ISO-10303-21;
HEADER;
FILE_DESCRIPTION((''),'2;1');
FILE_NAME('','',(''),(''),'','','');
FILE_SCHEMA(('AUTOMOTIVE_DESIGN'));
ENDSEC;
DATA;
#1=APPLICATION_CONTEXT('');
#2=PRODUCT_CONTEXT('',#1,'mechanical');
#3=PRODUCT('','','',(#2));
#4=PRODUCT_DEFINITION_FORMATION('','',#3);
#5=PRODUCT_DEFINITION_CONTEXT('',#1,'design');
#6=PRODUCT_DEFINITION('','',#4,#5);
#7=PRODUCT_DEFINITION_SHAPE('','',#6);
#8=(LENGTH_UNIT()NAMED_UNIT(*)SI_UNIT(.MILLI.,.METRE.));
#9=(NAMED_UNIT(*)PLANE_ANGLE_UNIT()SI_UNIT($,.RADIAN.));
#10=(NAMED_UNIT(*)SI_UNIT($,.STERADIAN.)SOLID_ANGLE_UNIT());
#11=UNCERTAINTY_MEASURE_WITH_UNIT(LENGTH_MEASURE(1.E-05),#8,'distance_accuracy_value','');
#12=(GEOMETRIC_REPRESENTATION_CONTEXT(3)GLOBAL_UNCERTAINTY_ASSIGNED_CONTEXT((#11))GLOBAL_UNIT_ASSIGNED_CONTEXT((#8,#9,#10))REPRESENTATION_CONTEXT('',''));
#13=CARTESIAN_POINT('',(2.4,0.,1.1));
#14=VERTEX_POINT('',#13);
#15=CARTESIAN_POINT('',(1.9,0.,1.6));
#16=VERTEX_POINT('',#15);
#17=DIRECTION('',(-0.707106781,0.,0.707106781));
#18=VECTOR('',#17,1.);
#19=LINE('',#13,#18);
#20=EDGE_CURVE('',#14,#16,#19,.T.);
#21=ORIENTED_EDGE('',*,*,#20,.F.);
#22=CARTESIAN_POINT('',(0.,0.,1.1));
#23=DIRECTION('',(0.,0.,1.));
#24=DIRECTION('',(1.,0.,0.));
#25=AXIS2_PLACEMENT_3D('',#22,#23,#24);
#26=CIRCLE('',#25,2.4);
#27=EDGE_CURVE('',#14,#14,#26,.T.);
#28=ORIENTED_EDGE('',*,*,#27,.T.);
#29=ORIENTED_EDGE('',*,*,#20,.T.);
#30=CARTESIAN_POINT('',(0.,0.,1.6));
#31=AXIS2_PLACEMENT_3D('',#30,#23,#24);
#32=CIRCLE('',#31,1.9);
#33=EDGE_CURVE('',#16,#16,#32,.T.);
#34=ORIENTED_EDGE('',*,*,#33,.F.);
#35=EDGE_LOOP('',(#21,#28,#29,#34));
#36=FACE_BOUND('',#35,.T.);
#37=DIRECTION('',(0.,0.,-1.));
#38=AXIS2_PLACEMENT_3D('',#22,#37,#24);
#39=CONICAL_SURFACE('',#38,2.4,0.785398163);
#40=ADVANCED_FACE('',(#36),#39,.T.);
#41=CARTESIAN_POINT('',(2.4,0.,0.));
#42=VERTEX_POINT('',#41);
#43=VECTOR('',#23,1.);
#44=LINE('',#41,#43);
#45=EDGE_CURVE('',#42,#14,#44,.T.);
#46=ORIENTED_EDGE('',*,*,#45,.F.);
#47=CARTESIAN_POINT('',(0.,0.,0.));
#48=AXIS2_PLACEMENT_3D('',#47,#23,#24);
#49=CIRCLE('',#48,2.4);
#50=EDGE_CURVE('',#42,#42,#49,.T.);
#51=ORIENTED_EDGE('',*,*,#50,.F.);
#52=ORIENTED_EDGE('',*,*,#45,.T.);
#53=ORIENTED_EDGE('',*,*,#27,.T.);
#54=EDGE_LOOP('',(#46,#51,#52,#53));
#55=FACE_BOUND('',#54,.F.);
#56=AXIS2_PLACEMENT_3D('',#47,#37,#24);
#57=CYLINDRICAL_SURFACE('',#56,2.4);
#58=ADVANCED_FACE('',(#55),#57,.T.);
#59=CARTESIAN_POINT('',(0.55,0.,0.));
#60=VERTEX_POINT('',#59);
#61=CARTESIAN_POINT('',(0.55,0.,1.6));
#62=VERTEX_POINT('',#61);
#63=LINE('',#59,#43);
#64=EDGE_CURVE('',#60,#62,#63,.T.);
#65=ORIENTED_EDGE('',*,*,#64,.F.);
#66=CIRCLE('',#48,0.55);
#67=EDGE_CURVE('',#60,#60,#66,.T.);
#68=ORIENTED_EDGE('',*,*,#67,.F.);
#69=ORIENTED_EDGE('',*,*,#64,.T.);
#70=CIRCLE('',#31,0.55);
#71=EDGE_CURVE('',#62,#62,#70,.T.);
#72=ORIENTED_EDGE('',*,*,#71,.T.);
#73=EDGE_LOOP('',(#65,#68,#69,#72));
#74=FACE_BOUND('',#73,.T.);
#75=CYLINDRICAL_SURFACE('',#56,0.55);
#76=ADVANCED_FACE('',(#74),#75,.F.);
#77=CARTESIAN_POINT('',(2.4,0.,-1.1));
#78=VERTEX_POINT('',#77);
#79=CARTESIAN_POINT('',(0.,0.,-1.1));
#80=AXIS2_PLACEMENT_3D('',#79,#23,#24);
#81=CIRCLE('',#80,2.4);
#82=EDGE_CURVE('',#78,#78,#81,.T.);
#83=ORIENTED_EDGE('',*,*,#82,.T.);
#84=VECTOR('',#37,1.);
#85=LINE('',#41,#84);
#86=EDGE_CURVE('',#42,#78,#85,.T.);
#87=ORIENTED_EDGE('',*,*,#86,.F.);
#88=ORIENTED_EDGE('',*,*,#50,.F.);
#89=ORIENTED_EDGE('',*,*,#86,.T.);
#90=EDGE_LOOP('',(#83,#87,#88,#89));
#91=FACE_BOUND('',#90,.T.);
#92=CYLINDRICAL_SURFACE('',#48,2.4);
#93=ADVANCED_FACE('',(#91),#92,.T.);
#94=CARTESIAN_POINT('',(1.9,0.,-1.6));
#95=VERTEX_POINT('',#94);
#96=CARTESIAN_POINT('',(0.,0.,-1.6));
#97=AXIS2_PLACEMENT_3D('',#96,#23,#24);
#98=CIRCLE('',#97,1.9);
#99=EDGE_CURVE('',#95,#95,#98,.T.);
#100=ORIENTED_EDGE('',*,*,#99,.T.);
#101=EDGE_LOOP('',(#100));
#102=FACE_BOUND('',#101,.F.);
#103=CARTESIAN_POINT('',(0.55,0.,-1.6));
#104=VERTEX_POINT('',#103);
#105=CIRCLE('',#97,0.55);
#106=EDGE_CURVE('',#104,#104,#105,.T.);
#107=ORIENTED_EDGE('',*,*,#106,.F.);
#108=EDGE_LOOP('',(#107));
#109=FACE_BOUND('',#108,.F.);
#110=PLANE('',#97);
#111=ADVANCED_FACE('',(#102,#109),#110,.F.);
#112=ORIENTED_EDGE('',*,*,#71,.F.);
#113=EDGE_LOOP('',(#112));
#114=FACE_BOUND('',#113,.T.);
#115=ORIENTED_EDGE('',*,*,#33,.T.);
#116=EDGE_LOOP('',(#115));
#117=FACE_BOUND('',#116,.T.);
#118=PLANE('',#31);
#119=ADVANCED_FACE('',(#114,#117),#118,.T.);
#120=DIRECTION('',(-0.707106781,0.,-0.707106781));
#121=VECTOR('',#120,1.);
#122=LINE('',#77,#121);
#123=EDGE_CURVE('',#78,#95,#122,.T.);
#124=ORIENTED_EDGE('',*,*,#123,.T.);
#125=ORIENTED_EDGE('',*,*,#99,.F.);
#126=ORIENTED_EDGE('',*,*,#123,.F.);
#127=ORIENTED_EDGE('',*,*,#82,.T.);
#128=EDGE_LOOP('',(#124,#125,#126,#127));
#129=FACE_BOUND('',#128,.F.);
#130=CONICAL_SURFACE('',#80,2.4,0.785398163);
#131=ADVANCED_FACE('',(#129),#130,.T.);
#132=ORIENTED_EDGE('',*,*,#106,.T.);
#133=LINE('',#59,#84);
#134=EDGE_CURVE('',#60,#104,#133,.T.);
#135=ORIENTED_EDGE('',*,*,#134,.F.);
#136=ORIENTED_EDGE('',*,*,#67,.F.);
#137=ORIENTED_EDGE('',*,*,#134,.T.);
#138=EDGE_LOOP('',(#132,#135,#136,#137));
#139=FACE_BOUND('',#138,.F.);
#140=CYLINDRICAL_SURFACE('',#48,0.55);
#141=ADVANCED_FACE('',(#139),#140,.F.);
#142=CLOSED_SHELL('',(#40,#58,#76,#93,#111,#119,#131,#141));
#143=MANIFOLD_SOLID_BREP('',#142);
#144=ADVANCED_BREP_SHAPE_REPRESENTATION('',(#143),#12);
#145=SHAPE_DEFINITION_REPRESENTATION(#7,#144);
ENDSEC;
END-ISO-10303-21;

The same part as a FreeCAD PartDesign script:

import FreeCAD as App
import Part
import Sketcher

V = App.Vector


def edges_at(feature, points):
    """Names of the edges that pass closest to the given points."""
    edges = feature.Shape.Edges
    near = lambda p: min(range(len(edges)), key=lambda i: edges[i].distToShape(Part.Vertex(*p))[0])
    return sorted({f"Edge{near(p) + 1}" for p in points})

doc = App.newDocument("Part")
body = doc.addObject("PartDesign::Body", "Body")

# Sketch on XY plane
sketch1 = body.newObject("Sketcher::SketchObject", "Sketch")
sketch1.AttachmentSupport = (doc.getObject("XY_Plane"), [""])
sketch1.MapMode = "FlatFace"
sketch1.addGeometry([
    Part.Circle(V(0, 0, 0), V(0, 0, 1), 2.4),
    Part.Circle(V(0, 0, 0), V(0, 0, 1), 0.55),
], False)
sketch1.addConstraint([
    Sketcher.Constraint("Coincident", 0, 3, -1, 1),
    Sketcher.Constraint("Coincident", 1, 3, -1, 1),
    Sketcher.Constraint("Diameter", 0, 4.8),
    Sketcher.Constraint("Diameter", 1, 1.1),
])
pad1 = body.newObject("PartDesign::Pad", "Pad")
pad1.Profile = sketch1
pad1.Length = 3.2
pad1.Midplane = True
doc.recompute()

chamfer = body.newObject("PartDesign::Chamfer", "Chamfer")
chamfer.Base = (pad1, edges_at(pad1, [(-2.4, 0, -1.6), (-2.4, 0, 1.6)]))
chamfer.Size = 0.5

doc.recompute()
